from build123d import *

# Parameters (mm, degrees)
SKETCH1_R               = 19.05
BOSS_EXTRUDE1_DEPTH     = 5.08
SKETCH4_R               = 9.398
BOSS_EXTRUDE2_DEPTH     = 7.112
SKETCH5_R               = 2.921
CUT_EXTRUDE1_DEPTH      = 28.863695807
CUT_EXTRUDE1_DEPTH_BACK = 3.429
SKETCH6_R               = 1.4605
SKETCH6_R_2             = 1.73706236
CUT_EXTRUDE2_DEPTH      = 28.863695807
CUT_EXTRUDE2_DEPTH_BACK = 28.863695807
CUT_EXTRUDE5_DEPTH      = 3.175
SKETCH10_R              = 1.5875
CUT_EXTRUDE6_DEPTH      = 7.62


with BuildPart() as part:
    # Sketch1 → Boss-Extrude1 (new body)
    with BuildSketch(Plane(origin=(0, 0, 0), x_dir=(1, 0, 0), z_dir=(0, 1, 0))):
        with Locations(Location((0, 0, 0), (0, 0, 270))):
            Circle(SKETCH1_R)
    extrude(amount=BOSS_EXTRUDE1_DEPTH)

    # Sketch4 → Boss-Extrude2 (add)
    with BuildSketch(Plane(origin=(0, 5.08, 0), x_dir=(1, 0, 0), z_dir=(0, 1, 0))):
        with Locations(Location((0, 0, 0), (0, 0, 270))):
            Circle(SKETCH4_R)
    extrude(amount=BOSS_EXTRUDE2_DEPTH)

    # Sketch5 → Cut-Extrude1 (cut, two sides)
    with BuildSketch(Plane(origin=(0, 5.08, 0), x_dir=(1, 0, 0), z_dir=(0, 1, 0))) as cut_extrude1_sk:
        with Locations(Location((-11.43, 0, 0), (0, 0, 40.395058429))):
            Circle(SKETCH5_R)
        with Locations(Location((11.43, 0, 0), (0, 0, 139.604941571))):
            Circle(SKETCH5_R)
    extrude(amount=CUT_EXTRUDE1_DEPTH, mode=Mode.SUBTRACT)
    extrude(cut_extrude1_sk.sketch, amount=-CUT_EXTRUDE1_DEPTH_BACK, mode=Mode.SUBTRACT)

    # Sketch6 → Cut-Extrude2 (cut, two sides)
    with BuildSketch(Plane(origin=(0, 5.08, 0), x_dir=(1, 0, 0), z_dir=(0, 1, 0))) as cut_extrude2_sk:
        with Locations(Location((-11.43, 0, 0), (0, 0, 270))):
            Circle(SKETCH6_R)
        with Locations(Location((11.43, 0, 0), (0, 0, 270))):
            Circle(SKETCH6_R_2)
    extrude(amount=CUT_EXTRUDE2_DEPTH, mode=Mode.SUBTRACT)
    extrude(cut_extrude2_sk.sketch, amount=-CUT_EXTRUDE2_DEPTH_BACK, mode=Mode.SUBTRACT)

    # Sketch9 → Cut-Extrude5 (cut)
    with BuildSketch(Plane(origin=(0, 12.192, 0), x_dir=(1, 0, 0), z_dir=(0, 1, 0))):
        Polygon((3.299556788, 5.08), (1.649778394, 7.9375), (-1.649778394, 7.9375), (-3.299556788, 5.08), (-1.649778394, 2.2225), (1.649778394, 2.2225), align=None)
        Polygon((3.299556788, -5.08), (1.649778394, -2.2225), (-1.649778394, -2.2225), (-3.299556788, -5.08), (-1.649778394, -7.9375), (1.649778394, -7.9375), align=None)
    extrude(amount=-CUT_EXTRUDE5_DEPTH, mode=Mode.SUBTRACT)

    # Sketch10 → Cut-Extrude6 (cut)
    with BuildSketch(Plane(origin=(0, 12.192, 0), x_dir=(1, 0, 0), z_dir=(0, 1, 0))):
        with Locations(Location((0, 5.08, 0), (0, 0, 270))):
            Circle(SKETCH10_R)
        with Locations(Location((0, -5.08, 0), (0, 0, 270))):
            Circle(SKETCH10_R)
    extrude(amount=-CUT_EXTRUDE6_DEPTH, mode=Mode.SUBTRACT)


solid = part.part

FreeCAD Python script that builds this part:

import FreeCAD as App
import Part
import Sketcher
from FreeCAD import Vector
Q = App.Units.Quantity

doc = App.newDocument("Part")
body = doc.addObject("PartDesign::Body", "Body")

# Sketch on XZ plane
sketch1 = body.newObject("Sketcher::SketchObject", "Sketch")
sketch1.AttachmentSupport = (doc.getObject("XZ_Plane"), [""])
sketch1.MapMode = "FlatFace"
sketch1.addGeometry(Part.Circle(Vector(0, 0, 0), Vector(0, 0, 1), 19.05), False)
sketch1.addConstraint(Sketcher.Constraint("Coincident", 0, 3, -1, 1))
sketch1.addConstraint(Sketcher.Constraint("Diameter", 0, Q("1.5 in")))
pad1 = body.newObject("PartDesign::Pad", "Pad")
pad1.Profile = sketch1
pad1.Length = Q("0.2 in")
pad1.Reversed = True

# Sketch on XZ plane
sketch2 = body.newObject("Sketcher::SketchObject", "Sketch001")
sketch2.AttachmentSupport = (doc.getObject("XZ_Plane"), [""])
sketch2.MapMode = "FlatFace"
sketch2.AttachmentOffset = App.Placement(Vector(0, 0, -0.2 * 25.4), App.Rotation())
sketch2.addGeometry(Part.Circle(Vector(0, 0, 0), Vector(0, 0, 1), 9.398), False)
sketch2.addConstraint(Sketcher.Constraint("Coincident", 0, 3, -1, 1))
sketch2.addConstraint(Sketcher.Constraint("Diameter", 0, Q("0.74 in")))
pad2 = body.newObject("PartDesign::Pad", "Pad001")
pad2.Profile = sketch2
pad2.Length = Q("0.28 in")
pad2.Reversed = True

# Sketch on XZ plane
sketch3 = body.newObject("Sketcher::SketchObject", "Sketch002")
sketch3.AttachmentSupport = (doc.getObject("XZ_Plane"), [""])
sketch3.MapMode = "FlatFace"
sketch3.AttachmentOffset = App.Placement(Vector(0, 0, -0.2 * 25.4), App.Rotation())
sketch3.addGeometry(Part.Circle(Vector(-11.43, 0, 0), Vector(0, 0, 1), 2.921), False)
sketch3.addGeometry(Part.Circle(Vector(11.43, 0, 0), Vector(0, 0, 1), 2.921), False)
sketch3.addConstraint(Sketcher.Constraint("Equal", 0, 1))
sketch3.addConstraint(Sketcher.Constraint("Symmetric", 0, 3, 1, 3, -1, 1))
sketch3.addConstraint(Sketcher.Constraint("PointOnObject", 0, 3, -1))
sketch3.addConstraint(Sketcher.Constraint("Diameter", 0, Q("0.23 in")))
sketch3.addConstraint(Sketcher.Constraint("DistanceX", 0, 3, 1, 3, Q("0.9 in")))
pocket1 = body.newObject("PartDesign::Pocket", "Pocket")
pocket1.Profile = sketch3
pocket1.Type = "TwoLengths"
pocket1.Length = 28.863696
pocket1.Length2 = Q("0.135 in")

# Sketch on XZ plane
sketch4 = body.newObject("Sketcher::SketchObject", "Sketch003")
sketch4.AttachmentSupport = (doc.getObject("XZ_Plane"), [""])
sketch4.MapMode = "FlatFace"
sketch4.AttachmentOffset = App.Placement(Vector(0, 0, -0.2 * 25.4), App.Rotation())
sketch4.addGeometry(Part.Circle(Vector(-11.43, 0, 0), Vector(0, 0, 1), 1.4605), False)
sketch4.addGeometry(Part.Circle(Vector(11.43, 0, 0), Vector(0, 0, 1), 1.737062), False)
sketch4.addConstraint(Sketcher.Constraint("Symmetric", 0, 3, 1, 3, -1, 1))
sketch4.addConstraint(Sketcher.Constraint("PointOnObject", 0, 3, -1))
sketch4.addConstraint(Sketcher.Constraint("Diameter", 0, Q("0.115 in")))
sketch4.addConstraint(Sketcher.Constraint("DistanceX", 0, 3, 1, 3, Q("0.9 in")))
sketch4.addConstraint(Sketcher.Constraint("Diameter", 1, Q("3.474125 mm")))
pocket2 = body.newObject("PartDesign::Pocket", "Pocket001")
pocket2.Profile = sketch4
pocket2.Type = "ThroughAll"
pocket2.Midplane = True

# Sketch on XZ plane
sketch5 = body.newObject("Sketcher::SketchObject", "Sketch004")
sketch5.AttachmentSupport = (doc.getObject("XZ_Plane"), [""])
sketch5.MapMode = "FlatFace"
sketch5.AttachmentOffset = App.Placement(Vector(0, 0, -0.48 * 25.4), App.Rotation())
sketch5.addGeometry(Part.LineSegment(Vector(3.299557, -5.08, 0), Vector(1.649778, -7.9375, 0)), False)
sketch5.addGeometry(Part.LineSegment(Vector(1.649778, -7.9375, 0), Vector(-1.649778, -7.9375, 0)), False)
sketch5.addGeometry(Part.LineSegment(Vector(-1.649778, -7.9375, 0), Vector(-3.299557, -5.08, 0)), False)
sketch5.addGeometry(Part.LineSegment(Vector(-3.299557, -5.08, 0), Vector(-1.649778, -2.2225, 0)), False)
sketch5.addGeometry(Part.LineSegment(Vector(-1.649778, -2.2225, 0), Vector(1.649778, -2.2225, 0)), False)
sketch5.addGeometry(Part.LineSegment(Vector(1.649778, -2.2225, 0), Vector(3.299557, -5.08, 0)), False)
sketch5.addGeometry(Part.LineSegment(Vector(3.299557, 5.08, 0), Vector(1.649778, 2.2225, 0)), False)
sketch5.addGeometry(Part.LineSegment(Vector(1.649778, 2.2225, 0), Vector(-1.649778, 2.2225, 0)), False)
sketch5.addGeometry(Part.LineSegment(Vector(-1.649778, 2.2225, 0), Vector(-3.299557, 5.08, 0)), False)
sketch5.addGeometry(Part.LineSegment(Vector(-3.299557, 5.08, 0), Vector(-1.649778, 7.9375, 0)), False)
sketch5.addGeometry(Part.LineSegment(Vector(-1.649778, 7.9375, 0), Vector(1.649778, 7.9375, 0)), False)
sketch5.addGeometry(Part.LineSegment(Vector(1.649778, 7.9375, 0), Vector(3.299557, 5.08, 0)), False)
sketch5.addConstraint(Sketcher.Constraint("Coincident", 0, 2, 1, 1))
sketch5.addConstraint(Sketcher.Constraint("Coincident", 1, 2, 2, 1))
sketch5.addConstraint(Sketcher.Constraint("Coincident", 2, 2, 3, 1))
sketch5.addConstraint(Sketcher.Constraint("Coincident", 3, 2, 4, 1))
sketch5.addConstraint(Sketcher.Constraint("Coincident", 4, 2, 5, 1))
sketch5.addConstraint(Sketcher.Constraint("Coincident", 5, 2, 0, 1))
sketch5.addConstraint(Sketcher.Constraint("Coincident", 6, 2, 7, 1))
sketch5.addConstraint(Sketcher.Constraint("Coincident", 7, 2, 8, 1))
sketch5.addConstraint(Sketcher.Constraint("Coincident", 8, 2, 9, 1))
sketch5.addConstraint(Sketcher.Constraint("Coincident", 9, 2, 10, 1))
sketch5.addConstraint(Sketcher.Constraint("Coincident", 10, 2, 11, 1))
sketch5.addConstraint(Sketcher.Constraint("Coincident", 11, 2, 6, 1))
sketch5.addConstraint(Sketcher.Constraint("Horizontal", 1))
sketch5.addConstraint(Sketcher.Constraint("Horizontal", 4))
sketch5.addConstraint(Sketcher.Constraint("Horizontal", 7))
sketch5.addConstraint(Sketcher.Constraint("Horizontal", 10))
sketch5.addConstraint(Sketcher.Constraint("Symmetric", 3, 2, 6, 2, -1, 1))
sketch5.addConstraint(Sketcher.Constraint("Symmetric", 5, 2, 8, 2, -1, 1))
sketch5.addConstraint(Sketcher.Constraint("Symmetric", 0, 2, 9, 2, -1, 1))
sketch5.addConstraint(Sketcher.Constraint("Symmetric", 2, 2, 11, 2, -1, 1))
sketch5.addConstraint(Sketcher.Constraint("Symmetric", 2, 2, 5, 2, -2))
sketch5.addConstraint(Sketcher.Constraint("Parallel", 0, 3))
sketch5.addConstraint(Sketcher.Constraint("Parallel", 2, 5))
sketch5.addConstraint(Sketcher.Constraint("Parallel", 5, 8))
sketch5.addConstraint(Sketcher.Constraint("Parallel", 8, 11))
sketch5.addConstraint(Sketcher.Constraint("Vertical", 1, 2, 3, 2))
sketch5.addConstraint(Sketcher.Constraint("Vertical", 0, 2, 4, 2))
sketch5.addConstraint(Sketcher.Constraint("Angle", 0, Q("-120 deg")))
sketch5.addConstraint(Sketcher.Constraint("DistanceY", 2, 2, -1, 1, Q("0.2 in")))
sketch5.addConstraint(Sketcher.Constraint("DistanceY", 0, 2, -1, 1, Q("0.3125 in")))
sketch5.addConstraint(Sketcher.Constraint("DistanceX", 1, 2, 1, 1, Q("3.299557 mm")))
pocket3 = body.newObject("PartDesign::Pocket", "Pocket002")
pocket3.Profile = sketch5
pocket3.Length = Q("0.125 in")
pocket3.Reversed = True

# Sketch on XZ plane
sketch6 = body.newObject("Sketcher::SketchObject", "Sketch005")
sketch6.AttachmentSupport = (doc.getObject("XZ_Plane"), [""])
sketch6.MapMode = "FlatFace"
sketch6.AttachmentOffset = App.Placement(Vector(0, 0, -0.48 * 25.4), App.Rotation())
sketch6.addGeometry(Part.Circle(Vector(0, -5.08, 0), Vector(0, 0, 1), 1.5875), False)
sketch6.addGeometry(Part.Circle(Vector(0, 5.08, 0), Vector(0, 0, 1), 1.5875), False)
sketch6.addConstraint(Sketcher.Constraint("Equal", 0, 1))
sketch6.addConstraint(Sketcher.Constraint("Symmetric", 0, 3, 1, 3, -1, 1))
sketch6.addConstraint(Sketcher.Constraint("PointOnObject", 0, 3, -2))
sketch6.addConstraint(Sketcher.Constraint("Diameter", 0, Q("0.125 in")))
sketch6.addConstraint(Sketcher.Constraint("DistanceY", 0, 3, -1, 1, Q("0.2 in")))
pocket4 = body.newObject("PartDesign::Pocket", "Pocket003")
pocket4.Profile = sketch6
pocket4.Length = Q("0.3 in")
pocket4.Reversed = True

doc.recompute()
